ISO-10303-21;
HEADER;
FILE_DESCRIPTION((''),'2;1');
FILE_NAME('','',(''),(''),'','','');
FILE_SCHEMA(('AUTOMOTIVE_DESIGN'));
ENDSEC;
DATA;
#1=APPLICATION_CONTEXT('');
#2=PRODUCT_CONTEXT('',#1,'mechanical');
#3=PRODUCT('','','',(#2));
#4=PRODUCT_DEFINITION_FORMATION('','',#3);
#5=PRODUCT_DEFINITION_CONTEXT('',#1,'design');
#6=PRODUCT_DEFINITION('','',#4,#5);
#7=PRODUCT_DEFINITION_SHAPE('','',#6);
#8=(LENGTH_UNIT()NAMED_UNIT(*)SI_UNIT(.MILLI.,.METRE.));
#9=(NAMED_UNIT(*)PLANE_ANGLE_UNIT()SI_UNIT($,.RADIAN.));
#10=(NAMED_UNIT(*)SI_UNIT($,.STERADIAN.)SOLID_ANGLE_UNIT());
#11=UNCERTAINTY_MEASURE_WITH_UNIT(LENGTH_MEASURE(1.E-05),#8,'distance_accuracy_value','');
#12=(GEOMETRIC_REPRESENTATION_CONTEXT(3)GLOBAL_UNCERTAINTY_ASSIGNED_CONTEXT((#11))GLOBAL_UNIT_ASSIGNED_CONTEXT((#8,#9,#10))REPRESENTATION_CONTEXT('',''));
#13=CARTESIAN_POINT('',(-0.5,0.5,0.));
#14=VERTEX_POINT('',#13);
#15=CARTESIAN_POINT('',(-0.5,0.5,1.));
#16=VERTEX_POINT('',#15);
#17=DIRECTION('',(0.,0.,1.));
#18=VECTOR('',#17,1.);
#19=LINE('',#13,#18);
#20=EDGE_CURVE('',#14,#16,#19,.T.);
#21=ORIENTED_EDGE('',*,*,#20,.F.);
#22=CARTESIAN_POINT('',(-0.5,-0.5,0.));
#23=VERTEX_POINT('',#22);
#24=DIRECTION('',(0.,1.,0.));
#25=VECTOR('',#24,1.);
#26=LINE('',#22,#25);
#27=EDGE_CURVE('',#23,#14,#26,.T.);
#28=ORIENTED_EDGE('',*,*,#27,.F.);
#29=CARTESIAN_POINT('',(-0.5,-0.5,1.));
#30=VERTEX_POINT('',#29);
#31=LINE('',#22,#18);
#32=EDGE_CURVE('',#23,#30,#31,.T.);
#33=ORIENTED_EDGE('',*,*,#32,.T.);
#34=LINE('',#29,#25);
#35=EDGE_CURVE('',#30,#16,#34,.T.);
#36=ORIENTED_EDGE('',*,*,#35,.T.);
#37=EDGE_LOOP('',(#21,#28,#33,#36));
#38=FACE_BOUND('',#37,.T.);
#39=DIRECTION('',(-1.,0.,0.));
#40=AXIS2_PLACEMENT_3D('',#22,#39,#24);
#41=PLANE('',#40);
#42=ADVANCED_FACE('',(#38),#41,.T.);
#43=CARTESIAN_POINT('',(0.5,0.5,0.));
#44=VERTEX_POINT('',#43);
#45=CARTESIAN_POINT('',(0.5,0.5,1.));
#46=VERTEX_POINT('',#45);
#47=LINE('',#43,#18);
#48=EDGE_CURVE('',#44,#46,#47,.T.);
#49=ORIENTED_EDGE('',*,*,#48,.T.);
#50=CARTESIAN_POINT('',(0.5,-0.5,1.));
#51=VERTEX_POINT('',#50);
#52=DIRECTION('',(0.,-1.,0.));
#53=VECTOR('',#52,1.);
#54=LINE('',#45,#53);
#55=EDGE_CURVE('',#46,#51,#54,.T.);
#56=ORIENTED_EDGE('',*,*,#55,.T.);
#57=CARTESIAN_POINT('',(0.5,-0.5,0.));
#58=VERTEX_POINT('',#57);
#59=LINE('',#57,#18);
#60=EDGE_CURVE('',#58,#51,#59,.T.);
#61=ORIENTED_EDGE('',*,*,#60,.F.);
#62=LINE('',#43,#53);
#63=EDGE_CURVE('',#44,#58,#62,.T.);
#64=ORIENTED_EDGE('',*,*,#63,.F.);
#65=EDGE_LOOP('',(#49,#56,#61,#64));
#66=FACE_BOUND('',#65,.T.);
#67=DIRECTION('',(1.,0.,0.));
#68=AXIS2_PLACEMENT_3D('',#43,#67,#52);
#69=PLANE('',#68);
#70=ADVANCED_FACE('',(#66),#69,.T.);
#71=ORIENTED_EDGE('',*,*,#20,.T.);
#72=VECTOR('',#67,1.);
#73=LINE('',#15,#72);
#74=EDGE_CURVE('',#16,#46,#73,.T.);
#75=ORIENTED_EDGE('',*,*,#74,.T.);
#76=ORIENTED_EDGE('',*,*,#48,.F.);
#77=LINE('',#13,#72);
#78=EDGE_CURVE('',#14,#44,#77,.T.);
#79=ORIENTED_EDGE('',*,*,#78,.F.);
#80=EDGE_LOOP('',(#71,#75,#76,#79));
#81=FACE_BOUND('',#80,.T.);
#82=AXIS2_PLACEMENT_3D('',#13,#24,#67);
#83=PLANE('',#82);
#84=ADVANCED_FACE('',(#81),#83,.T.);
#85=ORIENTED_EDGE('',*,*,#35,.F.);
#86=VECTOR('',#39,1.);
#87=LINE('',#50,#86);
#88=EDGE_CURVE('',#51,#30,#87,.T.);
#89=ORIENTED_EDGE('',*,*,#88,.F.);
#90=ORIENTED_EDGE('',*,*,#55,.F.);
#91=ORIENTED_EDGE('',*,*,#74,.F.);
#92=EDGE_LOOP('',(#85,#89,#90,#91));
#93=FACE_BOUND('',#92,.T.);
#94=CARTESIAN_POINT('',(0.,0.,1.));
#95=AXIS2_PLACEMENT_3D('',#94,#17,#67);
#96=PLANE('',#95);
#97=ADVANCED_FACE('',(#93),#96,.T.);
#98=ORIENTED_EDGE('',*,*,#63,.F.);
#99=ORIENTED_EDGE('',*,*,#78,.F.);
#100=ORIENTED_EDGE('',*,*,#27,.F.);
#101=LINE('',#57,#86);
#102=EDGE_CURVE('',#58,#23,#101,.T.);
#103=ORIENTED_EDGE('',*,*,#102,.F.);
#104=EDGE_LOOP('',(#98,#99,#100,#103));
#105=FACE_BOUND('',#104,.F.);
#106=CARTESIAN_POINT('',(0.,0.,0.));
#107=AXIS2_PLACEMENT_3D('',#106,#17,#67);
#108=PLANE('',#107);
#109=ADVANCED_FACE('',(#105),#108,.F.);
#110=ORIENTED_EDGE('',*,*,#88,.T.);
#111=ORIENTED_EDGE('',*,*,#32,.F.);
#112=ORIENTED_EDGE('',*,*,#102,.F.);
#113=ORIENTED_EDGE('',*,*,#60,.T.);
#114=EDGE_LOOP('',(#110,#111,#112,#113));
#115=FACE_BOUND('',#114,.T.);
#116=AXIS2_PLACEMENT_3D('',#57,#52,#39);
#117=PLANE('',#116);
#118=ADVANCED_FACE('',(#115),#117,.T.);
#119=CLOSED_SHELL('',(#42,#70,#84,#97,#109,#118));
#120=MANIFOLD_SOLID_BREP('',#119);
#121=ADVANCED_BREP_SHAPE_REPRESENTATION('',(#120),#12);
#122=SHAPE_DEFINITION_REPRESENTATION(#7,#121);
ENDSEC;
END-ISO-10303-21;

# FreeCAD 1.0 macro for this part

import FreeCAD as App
import Part
import Sketcher
from FreeCAD import Vector

doc = App.newDocument("Part")
body = doc.addObject("PartDesign::Body", "Body")

# Sketch on XY plane
sketch1 = body.newObject("Sketcher::SketchObject", "Sketch")
sketch1.AttachmentSupport = (doc.getObject("XY_Plane"), [""])
sketch1.MapMode = "FlatFace"
sketch1.addGeometry(Part.LineSegment(Vector(-0.5, 0.5, 0), Vector(-0.5, -0.5, 0)), False)
sketch1.addGeometry(Part.LineSegment(Vector(-0.5, -0.5, 0), Vector(0.5, -0.5, 0)), False)
sketch1.addGeometry(Part.LineSegment(Vector(0.5, -0.5, 0), Vector(0.5, 0.5, 0)), False)
sketch1.addGeometry(Part.LineSegment(Vector(0.5, 0.5, 0), Vector(-0.5, 0.5, 0)), False)
sketch1.addConstraint(Sketcher.Constraint("Coincident", 0, 2, 1, 1))
sketch1.addConstraint(Sketcher.Constraint("Coincident", 1, 2, 2, 1))
sketch1.addConstraint(Sketcher.Constraint("Coincident", 2, 2, 3, 1))
sketch1.addConstraint(Sketcher.Constraint("Coincident", 3, 2, 0, 1))
sketch1.addConstraint(Sketcher.Constraint("Vertical", 0))
sketch1.addConstraint(Sketcher.Constraint("Horizontal", 1))
sketch1.addConstraint(Sketcher.Constraint("Vertical", 2))
sketch1.addConstraint(Sketcher.Constraint("Horizontal", 3))
sketch1.addConstraint(Sketcher.Constraint("Symmetric", 0, 2, 2, 2, -1, 1))
sketch1.addConstraint(Sketcher.Constraint("Equal", 3, 0))
sketch1.addConstraint(Sketcher.Constraint("DistanceX", 1, 1, 1, 2, 1.0))
pad1 = body.newObject("PartDesign::Pad", "Pad")
pad1.Profile = sketch1
pad1.Length = 1

doc.recompute()
